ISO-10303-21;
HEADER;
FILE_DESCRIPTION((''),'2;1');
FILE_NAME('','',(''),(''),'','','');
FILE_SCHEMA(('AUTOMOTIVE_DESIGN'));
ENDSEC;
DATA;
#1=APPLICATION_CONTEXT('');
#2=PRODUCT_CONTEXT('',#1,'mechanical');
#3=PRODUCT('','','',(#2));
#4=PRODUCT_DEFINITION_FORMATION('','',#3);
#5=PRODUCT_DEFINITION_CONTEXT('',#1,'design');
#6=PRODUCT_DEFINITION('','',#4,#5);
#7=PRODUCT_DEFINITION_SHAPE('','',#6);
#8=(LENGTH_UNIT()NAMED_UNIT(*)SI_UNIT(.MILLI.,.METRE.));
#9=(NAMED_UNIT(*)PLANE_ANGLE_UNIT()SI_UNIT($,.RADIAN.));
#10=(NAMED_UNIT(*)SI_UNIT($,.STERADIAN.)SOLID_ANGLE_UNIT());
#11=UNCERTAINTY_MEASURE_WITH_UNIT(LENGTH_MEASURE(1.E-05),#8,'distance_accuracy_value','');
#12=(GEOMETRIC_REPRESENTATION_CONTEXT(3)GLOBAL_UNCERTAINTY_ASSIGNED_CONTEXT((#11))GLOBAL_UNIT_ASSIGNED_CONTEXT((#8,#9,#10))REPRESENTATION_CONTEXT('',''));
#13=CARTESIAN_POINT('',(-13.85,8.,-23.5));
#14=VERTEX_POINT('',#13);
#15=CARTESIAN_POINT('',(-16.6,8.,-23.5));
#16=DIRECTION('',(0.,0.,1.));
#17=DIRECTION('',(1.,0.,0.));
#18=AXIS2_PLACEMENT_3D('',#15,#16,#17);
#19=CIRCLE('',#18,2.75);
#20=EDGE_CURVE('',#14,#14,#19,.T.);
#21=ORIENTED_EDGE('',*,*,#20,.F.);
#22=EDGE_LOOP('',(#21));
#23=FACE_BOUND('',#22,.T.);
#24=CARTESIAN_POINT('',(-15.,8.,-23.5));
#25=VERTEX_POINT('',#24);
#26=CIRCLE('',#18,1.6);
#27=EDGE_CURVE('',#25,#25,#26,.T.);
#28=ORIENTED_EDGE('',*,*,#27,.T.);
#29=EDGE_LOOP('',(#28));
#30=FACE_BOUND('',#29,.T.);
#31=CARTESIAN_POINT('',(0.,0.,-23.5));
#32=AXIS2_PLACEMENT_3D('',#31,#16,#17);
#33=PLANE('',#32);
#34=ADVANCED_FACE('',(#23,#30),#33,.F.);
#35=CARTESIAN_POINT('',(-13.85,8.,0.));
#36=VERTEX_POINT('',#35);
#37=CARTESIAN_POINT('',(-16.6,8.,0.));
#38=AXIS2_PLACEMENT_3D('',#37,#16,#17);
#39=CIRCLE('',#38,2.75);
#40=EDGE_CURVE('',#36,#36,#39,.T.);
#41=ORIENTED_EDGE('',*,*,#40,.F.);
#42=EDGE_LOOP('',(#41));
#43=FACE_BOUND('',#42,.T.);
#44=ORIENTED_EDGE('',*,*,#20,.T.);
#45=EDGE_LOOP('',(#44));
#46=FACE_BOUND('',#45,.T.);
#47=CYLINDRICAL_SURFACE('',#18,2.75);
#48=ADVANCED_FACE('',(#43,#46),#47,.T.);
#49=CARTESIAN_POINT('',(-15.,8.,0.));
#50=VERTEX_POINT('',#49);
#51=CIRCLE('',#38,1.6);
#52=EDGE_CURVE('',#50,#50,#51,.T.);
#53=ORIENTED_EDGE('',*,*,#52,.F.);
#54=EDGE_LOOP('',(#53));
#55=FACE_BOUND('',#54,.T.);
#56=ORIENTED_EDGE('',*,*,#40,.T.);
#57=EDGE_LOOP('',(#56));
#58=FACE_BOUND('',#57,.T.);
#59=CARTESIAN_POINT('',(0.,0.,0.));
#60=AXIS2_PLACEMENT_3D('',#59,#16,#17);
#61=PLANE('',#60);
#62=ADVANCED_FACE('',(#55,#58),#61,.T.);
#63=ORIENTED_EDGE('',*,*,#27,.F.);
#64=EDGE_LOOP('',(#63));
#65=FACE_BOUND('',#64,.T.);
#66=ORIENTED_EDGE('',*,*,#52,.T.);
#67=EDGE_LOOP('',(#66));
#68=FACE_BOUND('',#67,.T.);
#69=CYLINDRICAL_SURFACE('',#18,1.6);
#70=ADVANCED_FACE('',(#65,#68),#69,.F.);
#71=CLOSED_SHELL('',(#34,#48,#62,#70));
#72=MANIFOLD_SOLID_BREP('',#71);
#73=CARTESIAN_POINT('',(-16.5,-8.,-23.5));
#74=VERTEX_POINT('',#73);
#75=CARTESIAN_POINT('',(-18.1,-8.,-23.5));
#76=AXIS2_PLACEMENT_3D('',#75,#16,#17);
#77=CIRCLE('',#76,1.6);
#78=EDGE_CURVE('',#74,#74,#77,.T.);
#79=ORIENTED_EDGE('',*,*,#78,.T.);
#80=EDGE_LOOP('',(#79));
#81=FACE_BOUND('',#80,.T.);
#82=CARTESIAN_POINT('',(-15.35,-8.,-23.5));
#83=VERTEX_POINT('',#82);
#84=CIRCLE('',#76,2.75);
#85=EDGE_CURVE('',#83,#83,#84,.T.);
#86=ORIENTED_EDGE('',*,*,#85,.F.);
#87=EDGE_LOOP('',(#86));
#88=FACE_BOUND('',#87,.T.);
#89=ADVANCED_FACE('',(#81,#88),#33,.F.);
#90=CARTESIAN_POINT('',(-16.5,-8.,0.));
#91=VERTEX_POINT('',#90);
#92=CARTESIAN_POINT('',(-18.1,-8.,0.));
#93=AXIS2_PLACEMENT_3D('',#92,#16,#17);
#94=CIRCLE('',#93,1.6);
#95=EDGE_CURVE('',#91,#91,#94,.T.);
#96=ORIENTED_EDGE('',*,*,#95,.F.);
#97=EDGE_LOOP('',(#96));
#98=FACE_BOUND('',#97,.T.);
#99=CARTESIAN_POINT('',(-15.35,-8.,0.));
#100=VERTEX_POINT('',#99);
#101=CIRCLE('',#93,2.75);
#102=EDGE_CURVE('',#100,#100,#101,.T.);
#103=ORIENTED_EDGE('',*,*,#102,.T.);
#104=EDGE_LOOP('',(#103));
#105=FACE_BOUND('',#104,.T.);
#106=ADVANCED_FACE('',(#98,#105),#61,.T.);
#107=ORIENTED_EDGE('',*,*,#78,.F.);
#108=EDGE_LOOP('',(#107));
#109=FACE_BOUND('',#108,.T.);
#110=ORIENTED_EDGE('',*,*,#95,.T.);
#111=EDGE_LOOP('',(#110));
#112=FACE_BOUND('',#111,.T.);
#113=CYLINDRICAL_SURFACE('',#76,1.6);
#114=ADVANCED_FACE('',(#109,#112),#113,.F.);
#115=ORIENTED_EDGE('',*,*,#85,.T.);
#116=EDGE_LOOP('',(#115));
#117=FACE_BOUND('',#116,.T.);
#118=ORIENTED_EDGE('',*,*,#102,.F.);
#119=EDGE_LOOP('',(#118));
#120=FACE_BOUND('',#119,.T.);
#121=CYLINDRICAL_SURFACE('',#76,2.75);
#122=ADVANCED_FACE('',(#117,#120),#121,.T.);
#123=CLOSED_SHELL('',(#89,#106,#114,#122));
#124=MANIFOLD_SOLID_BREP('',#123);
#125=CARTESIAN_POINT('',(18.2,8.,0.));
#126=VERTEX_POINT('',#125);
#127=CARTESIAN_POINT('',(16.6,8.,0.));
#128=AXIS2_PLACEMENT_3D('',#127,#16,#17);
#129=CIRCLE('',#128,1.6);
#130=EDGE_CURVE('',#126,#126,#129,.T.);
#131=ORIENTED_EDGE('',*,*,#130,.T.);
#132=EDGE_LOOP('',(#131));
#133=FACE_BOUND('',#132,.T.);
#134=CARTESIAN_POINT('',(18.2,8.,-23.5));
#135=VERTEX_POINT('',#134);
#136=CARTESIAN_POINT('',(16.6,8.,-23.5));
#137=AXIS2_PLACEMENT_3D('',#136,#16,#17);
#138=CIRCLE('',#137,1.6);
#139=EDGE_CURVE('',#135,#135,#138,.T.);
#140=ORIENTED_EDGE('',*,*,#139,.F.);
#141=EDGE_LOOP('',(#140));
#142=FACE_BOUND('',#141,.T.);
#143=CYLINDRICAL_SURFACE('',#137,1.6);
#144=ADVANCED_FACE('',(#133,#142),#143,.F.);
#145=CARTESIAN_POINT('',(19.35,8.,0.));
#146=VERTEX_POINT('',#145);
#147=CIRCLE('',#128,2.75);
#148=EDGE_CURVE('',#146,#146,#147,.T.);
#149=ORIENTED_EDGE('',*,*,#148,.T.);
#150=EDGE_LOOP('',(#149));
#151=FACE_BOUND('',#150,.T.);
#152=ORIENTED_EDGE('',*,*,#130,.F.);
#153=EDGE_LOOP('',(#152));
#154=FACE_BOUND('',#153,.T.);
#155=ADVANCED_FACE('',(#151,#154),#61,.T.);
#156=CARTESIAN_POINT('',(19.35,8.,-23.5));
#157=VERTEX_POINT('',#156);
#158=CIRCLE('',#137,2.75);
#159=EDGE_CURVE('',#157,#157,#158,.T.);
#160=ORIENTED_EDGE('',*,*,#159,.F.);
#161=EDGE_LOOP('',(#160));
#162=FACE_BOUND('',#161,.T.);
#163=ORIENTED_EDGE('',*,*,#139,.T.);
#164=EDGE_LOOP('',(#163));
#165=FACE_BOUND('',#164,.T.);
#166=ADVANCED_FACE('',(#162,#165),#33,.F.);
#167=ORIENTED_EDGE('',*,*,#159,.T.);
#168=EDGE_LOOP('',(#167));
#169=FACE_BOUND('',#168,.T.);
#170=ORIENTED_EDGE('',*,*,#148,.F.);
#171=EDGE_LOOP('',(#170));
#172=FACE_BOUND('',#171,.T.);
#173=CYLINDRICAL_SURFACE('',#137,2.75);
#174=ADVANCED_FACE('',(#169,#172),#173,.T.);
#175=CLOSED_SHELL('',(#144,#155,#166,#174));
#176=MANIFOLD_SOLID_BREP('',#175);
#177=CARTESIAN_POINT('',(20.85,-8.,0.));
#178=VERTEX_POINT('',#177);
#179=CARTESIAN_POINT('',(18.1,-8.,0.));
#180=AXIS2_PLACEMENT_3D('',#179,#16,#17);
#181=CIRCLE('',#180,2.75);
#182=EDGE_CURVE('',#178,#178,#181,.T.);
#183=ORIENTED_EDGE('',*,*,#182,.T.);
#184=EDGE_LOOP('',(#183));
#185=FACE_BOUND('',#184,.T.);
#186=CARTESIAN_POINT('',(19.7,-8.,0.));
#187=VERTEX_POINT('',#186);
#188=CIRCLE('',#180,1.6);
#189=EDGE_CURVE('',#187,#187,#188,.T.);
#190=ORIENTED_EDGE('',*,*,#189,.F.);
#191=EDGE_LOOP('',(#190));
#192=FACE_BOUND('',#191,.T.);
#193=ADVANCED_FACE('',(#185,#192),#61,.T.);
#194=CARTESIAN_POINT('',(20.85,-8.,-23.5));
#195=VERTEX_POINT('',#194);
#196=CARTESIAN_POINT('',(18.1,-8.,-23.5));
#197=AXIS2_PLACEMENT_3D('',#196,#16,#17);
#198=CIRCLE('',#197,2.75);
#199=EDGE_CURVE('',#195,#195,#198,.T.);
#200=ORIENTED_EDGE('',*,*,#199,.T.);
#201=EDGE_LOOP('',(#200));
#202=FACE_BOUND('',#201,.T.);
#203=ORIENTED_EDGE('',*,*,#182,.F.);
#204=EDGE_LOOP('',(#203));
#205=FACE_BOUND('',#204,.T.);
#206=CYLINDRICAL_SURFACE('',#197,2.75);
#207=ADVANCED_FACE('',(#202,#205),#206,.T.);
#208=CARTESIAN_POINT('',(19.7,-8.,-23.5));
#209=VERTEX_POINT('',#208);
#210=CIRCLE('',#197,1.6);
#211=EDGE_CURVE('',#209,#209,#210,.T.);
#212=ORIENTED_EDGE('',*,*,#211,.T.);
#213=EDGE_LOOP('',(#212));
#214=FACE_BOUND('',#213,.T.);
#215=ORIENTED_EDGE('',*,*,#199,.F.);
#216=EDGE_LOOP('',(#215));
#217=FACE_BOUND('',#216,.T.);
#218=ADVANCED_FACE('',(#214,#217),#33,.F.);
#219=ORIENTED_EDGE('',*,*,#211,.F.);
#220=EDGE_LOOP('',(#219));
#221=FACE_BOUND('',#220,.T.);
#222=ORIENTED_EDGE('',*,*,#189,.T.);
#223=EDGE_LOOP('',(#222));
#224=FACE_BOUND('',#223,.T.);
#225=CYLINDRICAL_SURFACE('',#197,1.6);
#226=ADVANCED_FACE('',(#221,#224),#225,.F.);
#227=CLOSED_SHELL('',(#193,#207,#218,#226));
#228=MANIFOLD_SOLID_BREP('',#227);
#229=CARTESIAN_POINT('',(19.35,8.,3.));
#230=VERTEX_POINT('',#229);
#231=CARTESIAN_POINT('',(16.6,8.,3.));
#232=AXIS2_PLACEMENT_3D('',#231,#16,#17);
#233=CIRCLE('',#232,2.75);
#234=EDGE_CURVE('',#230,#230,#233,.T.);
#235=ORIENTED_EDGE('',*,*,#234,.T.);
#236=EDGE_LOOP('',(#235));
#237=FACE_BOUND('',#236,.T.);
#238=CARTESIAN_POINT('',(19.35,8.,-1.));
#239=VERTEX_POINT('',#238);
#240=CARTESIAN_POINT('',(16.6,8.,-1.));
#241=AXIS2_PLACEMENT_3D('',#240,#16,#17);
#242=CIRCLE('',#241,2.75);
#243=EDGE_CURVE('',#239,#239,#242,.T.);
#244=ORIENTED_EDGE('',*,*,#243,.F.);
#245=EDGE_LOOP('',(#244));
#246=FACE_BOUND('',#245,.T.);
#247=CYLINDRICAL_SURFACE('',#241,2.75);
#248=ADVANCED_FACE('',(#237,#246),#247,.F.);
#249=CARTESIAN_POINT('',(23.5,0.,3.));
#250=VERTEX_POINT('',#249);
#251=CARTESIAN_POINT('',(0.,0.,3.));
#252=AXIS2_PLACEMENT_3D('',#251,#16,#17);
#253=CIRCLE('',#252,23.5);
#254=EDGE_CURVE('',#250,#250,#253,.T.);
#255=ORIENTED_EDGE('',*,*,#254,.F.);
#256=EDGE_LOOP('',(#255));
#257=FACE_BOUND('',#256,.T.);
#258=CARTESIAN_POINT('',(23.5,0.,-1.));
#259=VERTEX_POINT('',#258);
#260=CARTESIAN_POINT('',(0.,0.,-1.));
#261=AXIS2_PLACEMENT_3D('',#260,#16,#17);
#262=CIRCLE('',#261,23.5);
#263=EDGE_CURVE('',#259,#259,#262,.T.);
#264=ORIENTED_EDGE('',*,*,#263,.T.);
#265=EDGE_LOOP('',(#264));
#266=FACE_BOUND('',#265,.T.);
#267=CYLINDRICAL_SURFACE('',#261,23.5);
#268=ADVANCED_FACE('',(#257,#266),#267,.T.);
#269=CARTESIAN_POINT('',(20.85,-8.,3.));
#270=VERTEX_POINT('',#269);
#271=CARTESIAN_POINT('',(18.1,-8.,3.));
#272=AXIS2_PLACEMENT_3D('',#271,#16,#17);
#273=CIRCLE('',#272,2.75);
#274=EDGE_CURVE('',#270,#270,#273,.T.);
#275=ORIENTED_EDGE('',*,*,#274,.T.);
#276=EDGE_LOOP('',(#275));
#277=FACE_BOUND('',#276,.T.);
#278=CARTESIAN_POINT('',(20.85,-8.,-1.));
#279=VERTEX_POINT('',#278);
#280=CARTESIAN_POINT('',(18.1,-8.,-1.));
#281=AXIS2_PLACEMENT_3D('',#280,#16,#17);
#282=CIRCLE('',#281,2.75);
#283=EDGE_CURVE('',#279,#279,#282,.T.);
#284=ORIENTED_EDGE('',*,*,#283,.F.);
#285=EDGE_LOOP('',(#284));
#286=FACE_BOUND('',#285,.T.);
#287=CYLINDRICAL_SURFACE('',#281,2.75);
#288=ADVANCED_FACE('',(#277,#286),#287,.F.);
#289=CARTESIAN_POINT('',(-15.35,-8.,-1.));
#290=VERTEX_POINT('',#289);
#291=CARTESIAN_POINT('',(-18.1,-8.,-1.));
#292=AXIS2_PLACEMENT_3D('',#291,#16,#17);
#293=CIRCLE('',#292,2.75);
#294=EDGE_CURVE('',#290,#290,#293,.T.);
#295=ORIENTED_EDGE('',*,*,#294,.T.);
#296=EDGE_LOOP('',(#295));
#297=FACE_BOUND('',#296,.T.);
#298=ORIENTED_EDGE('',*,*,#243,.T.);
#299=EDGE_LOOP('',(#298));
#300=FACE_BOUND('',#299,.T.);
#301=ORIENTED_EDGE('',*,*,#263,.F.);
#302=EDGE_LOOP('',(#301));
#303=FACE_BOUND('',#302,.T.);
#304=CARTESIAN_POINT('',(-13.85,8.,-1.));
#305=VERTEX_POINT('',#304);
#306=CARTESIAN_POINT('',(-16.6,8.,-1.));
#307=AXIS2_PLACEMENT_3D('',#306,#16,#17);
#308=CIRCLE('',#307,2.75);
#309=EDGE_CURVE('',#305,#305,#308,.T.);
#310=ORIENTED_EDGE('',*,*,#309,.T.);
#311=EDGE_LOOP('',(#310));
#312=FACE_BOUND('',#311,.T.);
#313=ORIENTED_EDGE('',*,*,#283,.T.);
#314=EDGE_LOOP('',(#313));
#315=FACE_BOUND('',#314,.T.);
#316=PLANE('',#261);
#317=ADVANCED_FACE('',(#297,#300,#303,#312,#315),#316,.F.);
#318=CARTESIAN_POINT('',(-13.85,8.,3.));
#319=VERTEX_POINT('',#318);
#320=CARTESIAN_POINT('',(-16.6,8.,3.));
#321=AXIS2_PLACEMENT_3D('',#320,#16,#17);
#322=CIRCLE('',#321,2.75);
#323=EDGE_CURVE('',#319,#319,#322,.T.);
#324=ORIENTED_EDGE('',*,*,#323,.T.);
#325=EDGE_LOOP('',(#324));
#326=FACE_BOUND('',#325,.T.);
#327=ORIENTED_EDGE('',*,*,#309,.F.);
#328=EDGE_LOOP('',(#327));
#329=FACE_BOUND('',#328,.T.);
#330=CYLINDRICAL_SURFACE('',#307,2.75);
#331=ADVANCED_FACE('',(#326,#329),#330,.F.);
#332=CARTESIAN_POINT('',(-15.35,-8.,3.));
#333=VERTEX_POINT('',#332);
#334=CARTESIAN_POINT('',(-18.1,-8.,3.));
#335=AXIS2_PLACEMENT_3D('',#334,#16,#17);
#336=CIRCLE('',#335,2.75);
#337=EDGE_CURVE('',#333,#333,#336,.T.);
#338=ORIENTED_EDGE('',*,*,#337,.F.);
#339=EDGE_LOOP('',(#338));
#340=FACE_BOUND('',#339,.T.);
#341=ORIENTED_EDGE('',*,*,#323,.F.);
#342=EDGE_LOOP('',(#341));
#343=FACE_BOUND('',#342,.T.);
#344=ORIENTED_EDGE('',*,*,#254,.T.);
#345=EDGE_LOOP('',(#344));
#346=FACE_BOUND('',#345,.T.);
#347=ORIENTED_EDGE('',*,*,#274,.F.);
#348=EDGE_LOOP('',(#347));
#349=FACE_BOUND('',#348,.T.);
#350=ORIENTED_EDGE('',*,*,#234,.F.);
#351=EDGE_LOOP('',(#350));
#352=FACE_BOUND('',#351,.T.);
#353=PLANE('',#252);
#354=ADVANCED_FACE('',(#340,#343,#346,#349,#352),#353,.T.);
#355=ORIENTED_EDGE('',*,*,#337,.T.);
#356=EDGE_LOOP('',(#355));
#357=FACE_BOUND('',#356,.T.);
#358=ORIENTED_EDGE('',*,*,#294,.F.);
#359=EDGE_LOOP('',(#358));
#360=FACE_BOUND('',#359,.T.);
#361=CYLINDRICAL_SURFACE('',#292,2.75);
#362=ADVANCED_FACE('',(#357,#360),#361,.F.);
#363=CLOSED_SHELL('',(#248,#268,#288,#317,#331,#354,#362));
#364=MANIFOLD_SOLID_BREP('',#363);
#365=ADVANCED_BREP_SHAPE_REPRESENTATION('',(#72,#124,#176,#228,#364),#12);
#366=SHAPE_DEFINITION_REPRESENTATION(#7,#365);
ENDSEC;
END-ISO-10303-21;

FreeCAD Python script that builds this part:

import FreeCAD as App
import Part
import Sketcher

doc = App.newDocument("Part")
body = doc.addObject("PartDesign::Body", "Body")

sketch1 = body.newObject("Sketcher::SketchObject", "Sketch")
sketch1.AttachmentSupport = (doc.getObject("XY_Plane"), [""])
sketch1.MapMode = "FlatFace"
sketch1.addGeometry([
    Part.Circle(App.Vector(0, 0, 0), App.Vector(0, 0, 1), 23.5),
    Part.Circle(App.Vector(-18.1, -8, 0), App.Vector(0, 0, 1), 2.8),
    Part.Circle(App.Vector(18.1, -8, 0), App.Vector(0, 0, 1), 2.8),
    Part.Circle(App.Vector(-16.6, 8, 0), App.Vector(0, 0, 1), 2.8),
    Part.Circle(App.Vector(16.6, 8, 0), App.Vector(0, 0, 1), 2.8),
], False)
sketch1.addConstraint([
    Sketcher.Constraint("Coincident", 0, 3, -1, 1),
    Sketcher.Constraint("Equal", 1, 2),
    Sketcher.Constraint("Equal", 2, 3),
    Sketcher.Constraint("Equal", 3, 4),
    Sketcher.Constraint("Symmetric", 1, 3, 2, 3, -2),
    Sketcher.Constraint("Symmetric", 3, 3, 4, 3, -2),
    Sketcher.Constraint("Diameter", 0, 47.0),
    Sketcher.Constraint("Diameter", 1, 5.5),
    Sketcher.Constraint("DistanceY", 1, 3, -1, 1, 8.0),
    Sketcher.Constraint("DistanceY", -1, 1, 3, 3, 8.0),
    Sketcher.Constraint("DistanceX", 1, 3, -1, 1, 18.1),
    Sketcher.Constraint("DistanceX", 3, 3, -1, 1, 16.6),
])
pad1 = body.newObject("PartDesign::Pad", "Pad")
pad1.Profile = sketch1
pad1.Type = "TwoLengths"
pad1.Length = 3
pad1.Length2 = 1
body2 = doc.addObject("PartDesign::Body", "Body001")

sketch2 = body2.newObject("Sketcher::SketchObject", "Sketch001")
sketch2.AttachmentSupport = (doc.getObject("XY_Plane001"), [""])
sketch2.MapMode = "FlatFace"
sketch2.addGeometry([
    Part.Circle(App.Vector(16.6, 8, 0), App.Vector(0, 0, 1), 2.8),
    Part.Circle(App.Vector(16.6, 8, 0), App.Vector(0, 0, 1), 1.6),
], False)
sketch2.addConstraint([
    Sketcher.Constraint("Coincident", 1, 3, 0, 3),
    Sketcher.Constraint("Diameter", 0, 5.5),
    Sketcher.Constraint("Diameter", 1, 3.2),
    Sketcher.Constraint("DistanceY", -1, 1, 0, 3, 8.0),
    Sketcher.Constraint("DistanceX", -1, 1, 0, 3, 16.6),
])
pad2 = body2.newObject("PartDesign::Pad", "Pad001")
pad2.Profile = sketch2
pad2.Length = 23.5
pad2.Reversed = True
body3 = doc.addObject("PartDesign::Body", "Body002")

sketch3 = body3.newObject("Sketcher::SketchObject", "Sketch002")
sketch3.AttachmentSupport = (doc.getObject("XY_Plane002"), [""])
sketch3.MapMode = "FlatFace"
sketch3.addGeometry([
    Part.Circle(App.Vector(-16.6, 8, 0), App.Vector(0, 0, 1), 2.8),
    Part.Circle(App.Vector(-16.6, 8, 0), App.Vector(0, 0, 1), 1.6),
], False)
sketch3.addConstraint([
    Sketcher.Constraint("Coincident", 1, 3, 0, 3),
    Sketcher.Constraint("Diameter", 0, 5.5),
    Sketcher.Constraint("Diameter", 1, 3.2),
    Sketcher.Constraint("DistanceY", -1, 1, 0, 3, 8.0),
    Sketcher.Constraint("DistanceX", 0, 3, -1, 1, 16.6),
])
pad3 = body3.newObject("PartDesign::Pad", "Pad002")
pad3.Profile = sketch3
pad3.Length = 23.5
pad3.Reversed = True
body4 = doc.addObject("PartDesign::Body", "Body003")

sketch4 = body4.newObject("Sketcher::SketchObject", "Sketch003")
sketch4.AttachmentSupport = (doc.getObject("XY_Plane003"), [""])
sketch4.MapMode = "FlatFace"
sketch4.addGeometry([
    Part.Circle(App.Vector(-18.1, -8, 0), App.Vector(0, 0, 1), 2.8),
    Part.Circle(App.Vector(-18.1, -8, 0), App.Vector(0, 0, 1), 1.6),
], False)
sketch4.addConstraint([
    Sketcher.Constraint("Coincident", 1, 3, 0, 3),
    Sketcher.Constraint("Diameter", 0, 5.5),
    Sketcher.Constraint("Diameter", 1, 3.2),
    Sketcher.Constraint("DistanceY", 0, 3, -1, 1, 8.0),
    Sketcher.Constraint("DistanceX", 0, 3, -1, 1, 18.1),
])
pad4 = body4.newObject("PartDesign::Pad", "Pad003")
pad4.Profile = sketch4
pad4.Length = 23.5
pad4.Reversed = True
body5 = doc.addObject("PartDesign::Body", "Body004")

sketch5 = body5.newObject("Sketcher::SketchObject", "Sketch004")
sketch5.AttachmentSupport = (doc.getObject("XY_Plane004"), [""])
sketch5.MapMode = "FlatFace"
sketch5.addGeometry([
    Part.Circle(App.Vector(18.1, -8, 0), App.Vector(0, 0, 1), 2.8),
    Part.Circle(App.Vector(18.1, -8, 0), App.Vector(0, 0, 1), 1.6),
], False)
sketch5.addConstraint([
    Sketcher.Constraint("Coincident", 1, 3, 0, 3),
    Sketcher.Constraint("Diameter", 0, 5.5),
    Sketcher.Constraint("Diameter", 1, 3.2),
    Sketcher.Constraint("DistanceY", 0, 3, -1, 1, 8.0),
    Sketcher.Constraint("DistanceX", -1, 1, 0, 3, 18.1),
])
pad5 = body5.newObject("PartDesign::Pad", "Pad004")
pad5.Profile = sketch5
pad5.Length = 23.5
pad5.Reversed = True

doc.recompute()
